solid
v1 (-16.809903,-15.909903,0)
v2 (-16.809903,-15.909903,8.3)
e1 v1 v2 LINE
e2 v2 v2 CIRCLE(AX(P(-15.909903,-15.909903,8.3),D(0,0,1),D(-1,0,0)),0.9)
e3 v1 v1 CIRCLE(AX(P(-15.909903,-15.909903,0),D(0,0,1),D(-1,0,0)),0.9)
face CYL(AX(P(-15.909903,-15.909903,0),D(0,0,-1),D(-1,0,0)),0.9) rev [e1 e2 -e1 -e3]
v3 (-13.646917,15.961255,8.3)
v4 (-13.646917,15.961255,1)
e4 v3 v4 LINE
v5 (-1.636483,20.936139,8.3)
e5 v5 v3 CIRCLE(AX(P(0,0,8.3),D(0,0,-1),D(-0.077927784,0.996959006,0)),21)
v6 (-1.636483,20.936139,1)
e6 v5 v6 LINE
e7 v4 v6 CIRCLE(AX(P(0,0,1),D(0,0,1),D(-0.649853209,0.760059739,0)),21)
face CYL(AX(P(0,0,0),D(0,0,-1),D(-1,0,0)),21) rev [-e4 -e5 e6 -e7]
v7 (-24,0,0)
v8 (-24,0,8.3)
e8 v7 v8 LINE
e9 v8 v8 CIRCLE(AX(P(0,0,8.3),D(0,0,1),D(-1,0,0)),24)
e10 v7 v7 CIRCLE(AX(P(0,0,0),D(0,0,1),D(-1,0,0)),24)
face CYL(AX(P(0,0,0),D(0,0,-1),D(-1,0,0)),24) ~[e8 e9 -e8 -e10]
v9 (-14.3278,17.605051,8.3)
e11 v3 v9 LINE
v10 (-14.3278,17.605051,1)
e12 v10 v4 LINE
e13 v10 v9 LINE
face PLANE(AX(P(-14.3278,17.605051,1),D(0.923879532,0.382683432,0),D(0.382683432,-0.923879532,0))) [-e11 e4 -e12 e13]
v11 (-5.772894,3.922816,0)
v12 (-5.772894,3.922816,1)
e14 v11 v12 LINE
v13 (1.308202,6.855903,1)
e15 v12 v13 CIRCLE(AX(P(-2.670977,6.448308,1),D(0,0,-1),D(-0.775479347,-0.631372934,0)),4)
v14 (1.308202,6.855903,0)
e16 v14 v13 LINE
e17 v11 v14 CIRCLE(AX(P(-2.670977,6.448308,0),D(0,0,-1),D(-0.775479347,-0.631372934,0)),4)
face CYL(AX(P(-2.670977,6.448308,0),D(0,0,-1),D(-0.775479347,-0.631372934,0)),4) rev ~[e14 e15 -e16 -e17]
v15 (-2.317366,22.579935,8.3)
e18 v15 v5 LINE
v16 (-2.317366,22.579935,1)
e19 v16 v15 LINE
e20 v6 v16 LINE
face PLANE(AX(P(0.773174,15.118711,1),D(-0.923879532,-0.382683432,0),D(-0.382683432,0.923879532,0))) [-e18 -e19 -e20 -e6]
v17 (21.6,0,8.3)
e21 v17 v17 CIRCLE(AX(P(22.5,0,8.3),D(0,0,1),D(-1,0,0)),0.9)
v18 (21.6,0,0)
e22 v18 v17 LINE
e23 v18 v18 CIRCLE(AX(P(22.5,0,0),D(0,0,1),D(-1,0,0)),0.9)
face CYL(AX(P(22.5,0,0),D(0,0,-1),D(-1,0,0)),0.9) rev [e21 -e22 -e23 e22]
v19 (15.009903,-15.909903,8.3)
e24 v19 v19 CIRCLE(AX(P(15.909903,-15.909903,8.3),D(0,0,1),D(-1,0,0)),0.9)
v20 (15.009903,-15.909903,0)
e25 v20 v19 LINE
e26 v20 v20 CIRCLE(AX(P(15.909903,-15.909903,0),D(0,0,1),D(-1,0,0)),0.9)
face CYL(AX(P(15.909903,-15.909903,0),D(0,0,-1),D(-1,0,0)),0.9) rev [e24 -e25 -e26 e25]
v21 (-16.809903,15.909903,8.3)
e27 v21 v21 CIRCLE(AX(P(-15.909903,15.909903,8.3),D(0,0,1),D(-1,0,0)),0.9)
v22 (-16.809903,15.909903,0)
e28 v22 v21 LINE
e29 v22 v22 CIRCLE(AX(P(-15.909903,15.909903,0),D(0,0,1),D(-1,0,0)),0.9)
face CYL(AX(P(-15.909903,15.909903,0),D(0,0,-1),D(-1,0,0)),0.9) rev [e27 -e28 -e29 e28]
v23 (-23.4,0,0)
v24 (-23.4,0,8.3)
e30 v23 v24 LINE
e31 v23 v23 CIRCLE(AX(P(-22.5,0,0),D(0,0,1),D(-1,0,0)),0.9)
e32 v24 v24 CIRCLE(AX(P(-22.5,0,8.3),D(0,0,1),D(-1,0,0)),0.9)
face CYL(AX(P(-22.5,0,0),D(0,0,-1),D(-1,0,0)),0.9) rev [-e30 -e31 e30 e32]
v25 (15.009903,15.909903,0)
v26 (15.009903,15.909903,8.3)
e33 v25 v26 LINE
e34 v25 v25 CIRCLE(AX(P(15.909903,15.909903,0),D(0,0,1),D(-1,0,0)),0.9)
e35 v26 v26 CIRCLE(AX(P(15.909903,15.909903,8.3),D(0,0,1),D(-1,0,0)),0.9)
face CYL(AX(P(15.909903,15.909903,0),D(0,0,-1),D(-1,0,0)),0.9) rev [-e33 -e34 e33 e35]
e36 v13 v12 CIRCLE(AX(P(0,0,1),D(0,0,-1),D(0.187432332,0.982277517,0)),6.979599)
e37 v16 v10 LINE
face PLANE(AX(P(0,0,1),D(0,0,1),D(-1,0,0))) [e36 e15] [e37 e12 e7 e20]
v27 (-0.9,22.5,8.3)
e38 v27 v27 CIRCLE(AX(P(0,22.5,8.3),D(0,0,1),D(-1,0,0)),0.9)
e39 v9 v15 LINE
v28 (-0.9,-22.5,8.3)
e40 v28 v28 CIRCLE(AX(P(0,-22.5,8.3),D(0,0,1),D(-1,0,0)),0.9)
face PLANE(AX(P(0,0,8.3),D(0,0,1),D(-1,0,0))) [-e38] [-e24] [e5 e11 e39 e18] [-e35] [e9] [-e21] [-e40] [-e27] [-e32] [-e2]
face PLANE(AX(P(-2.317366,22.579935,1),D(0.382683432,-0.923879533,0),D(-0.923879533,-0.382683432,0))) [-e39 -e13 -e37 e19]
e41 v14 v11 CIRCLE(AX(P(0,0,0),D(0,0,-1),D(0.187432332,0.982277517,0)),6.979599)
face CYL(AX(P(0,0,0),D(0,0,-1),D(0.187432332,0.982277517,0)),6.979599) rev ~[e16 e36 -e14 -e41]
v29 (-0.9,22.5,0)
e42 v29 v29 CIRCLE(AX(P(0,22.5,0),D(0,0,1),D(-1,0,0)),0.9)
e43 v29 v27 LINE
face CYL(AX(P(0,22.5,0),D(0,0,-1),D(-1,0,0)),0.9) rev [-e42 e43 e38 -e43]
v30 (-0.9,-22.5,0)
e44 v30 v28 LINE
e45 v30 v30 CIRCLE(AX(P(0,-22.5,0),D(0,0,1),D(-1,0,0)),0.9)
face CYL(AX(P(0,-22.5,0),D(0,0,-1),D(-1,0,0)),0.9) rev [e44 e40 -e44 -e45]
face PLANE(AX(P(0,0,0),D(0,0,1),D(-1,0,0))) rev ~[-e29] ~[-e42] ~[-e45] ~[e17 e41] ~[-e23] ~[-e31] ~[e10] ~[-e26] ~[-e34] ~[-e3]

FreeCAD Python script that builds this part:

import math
import FreeCAD as App
import Part
import Sketcher
Q = App.Units.Quantity

doc = App.newDocument("Part")
body = doc.addObject("PartDesign::Body", "Body")

sketch1 = body.newObject("Sketcher::SketchObject", "Sketch")
sketch1.AttachmentSupport = (doc.getObject("XY_Plane"), [""])
sketch1.MapMode = "FlatFace"
sketch1.addGeometry(Part.Circle(App.Vector(0, 0, 0), App.Vector(0, 0, 1), 24), False)
sketch1.addGeometry(Part.Circle(App.Vector(15.9, 15.9, 0), App.Vector(0, 0, 1), 0.9), False)
sketch1.addGeometry(Part.Circle(App.Vector(22.5, 0, 0), App.Vector(0, 0, 1), 0.9), False)
sketch1.addGeometry(Part.Circle(App.Vector(0, 22.5, 0), App.Vector(0, 0, 1), 0.9), False)
sketch1.addGeometry(Part.Circle(App.Vector(-15.9, 15.9, 0), App.Vector(0, 0, 1), 0.9), False)
sketch1.addGeometry(Part.Circle(App.Vector(15.9, -15.9, 0), App.Vector(0, 0, 1), 0.9), False)
sketch1.addGeometry(Part.Circle(App.Vector(0, 0, 0), App.Vector(0, 0, 1), 21), False)
sketch1.addGeometry(Part.Circle(App.Vector(-22.5, 0, 0), App.Vector(0, 0, 1), 0.9), False)
sketch1.addGeometry(Part.Circle(App.Vector(0, -22.5, 0), App.Vector(0, 0, 1), 0.9), False)
sketch1.addGeometry(Part.Circle(App.Vector(-15.9, -15.9, 0), App.Vector(0, 0, 1), 0.9), False)
sketch1.addConstraint(Sketcher.Constraint("Coincident", 0, 3, -1, 1))
sketch1.addConstraint(Sketcher.Constraint("Coincident", 6, 3, -1, 1))
sketch1.addConstraint(Sketcher.Constraint("Equal", 1, 2))
sketch1.addConstraint(Sketcher.Constraint("Equal", 2, 3))
sketch1.addConstraint(Sketcher.Constraint("Equal", 3, 4))
sketch1.addConstraint(Sketcher.Constraint("Equal", 4, 5))
sketch1.addConstraint(Sketcher.Constraint("Equal", 5, 7))
sketch1.addConstraint(Sketcher.Constraint("Equal", 7, 8))
sketch1.addConstraint(Sketcher.Constraint("Equal", 8, 9))
sketch1.addConstraint(Sketcher.Constraint("Symmetric", 4, 3, 5, 3, -1, 1))
sketch1.addConstraint(Sketcher.Constraint("Symmetric", 2, 3, 7, 3, -1, 1))
sketch1.addConstraint(Sketcher.Constraint("Symmetric", 3, 3, 8, 3, -1, 1))
sketch1.addConstraint(Sketcher.Constraint("Symmetric", 1, 3, 9, 3, -1, 1))
sketch1.addConstraint(Sketcher.Constraint("Symmetric", 1, 3, 4, 3, -2))
sketch1.addConstraint(Sketcher.Constraint("PointOnObject", 2, 3, -1))
sketch1.addConstraint(Sketcher.Constraint("PointOnObject", 3, 3, -2))
sketch1.addConstraint(Sketcher.Constraint("Diameter", 0, 48.0))
sketch1.addConstraint(Sketcher.Constraint("Diameter", 6, 42.0))
sketch1.addConstraint(Sketcher.Constraint("Diameter", 1, 1.8))
sketch1.addConstraint(Sketcher.Constraint("DistanceX", -1, 1, 2, 3, 22.5))
sketch1.addConstraint(Sketcher.Constraint("DistanceY", -1, 1, 3, 3, 22.5))
sketch1.addConstraint(Sketcher.Constraint("DistanceX", -1, 1, 1, 3, 15.909903))
sketch1.addConstraint(Sketcher.Constraint("DistanceY", -1, 1, 1, 3, 15.909903))
pad1 = body.newObject("PartDesign::Pad", "Pad")
pad1.Profile = sketch1
pad1.Length = 8.3

sketch2 = body.newObject("Sketcher::SketchObject", "Sketch001")
sketch2.AttachmentSupport = (doc.getObject("XY_Plane"), [""])
sketch2.MapMode = "FlatFace"
sketch2.addGeometry(Part.Circle(App.Vector(0, 0, 0), App.Vector(0, 0, 1), 21), False)
sketch2.addConstraint(Sketcher.Constraint("Coincident", 0, 3, -1, 1))
sketch2.addConstraint(Sketcher.Constraint("Diameter", 0, 42.0))
pad2 = body.newObject("PartDesign::Pad", "Pad001")
pad2.Profile = sketch2
pad2.Length = 1

sketch3 = body.newObject("Sketcher::SketchObject", "Sketch002")
sketch3.AttachmentSupport = (doc.getObject("XY_Plane"), [""])
sketch3.MapMode = "FlatFace"
sketch3.addGeometry(Part.ArcOfCircle(Part.Circle(App.Vector(0, 0, 0), App.Vector(0, 0, 1), 7), math.radians(146), math.radians(439)), False)
sketch3.addGeometry(Part.ArcOfCircle(Part.Circle(App.Vector(-2.7, 6.4, 0), App.Vector(0, 0, 1), 4), math.radians(6), math.radians(219)), False)
sketch3.addConstraint(Sketcher.Constraint("Coincident", 0, 1, 1, 2))
sketch3.addConstraint(Sketcher.Constraint("Coincident", 1, 1, 0, 2))
sketch3.addConstraint(Sketcher.Constraint("Coincident", 0, 3, -1, 1))
sketch3.addConstraint(Sketcher.Constraint("Radius", 1, 4.0))
sketch3.addConstraint(Sketcher.Constraint("Radius", 0, 6.979599))
sketch3.addConstraint(Sketcher.Constraint("DistanceY", -1, 1, 1, 3, 6.448308))
sketch3.addConstraint(Sketcher.Constraint("DistanceY", 0, 1, 1, 3, 2.525492))
pocket1 = body.newObject("PartDesign::Pocket", "Pocket")
pocket1.Profile = sketch3
pocket1.Type = "ThroughAll"
pocket1.Reversed = True

sketch4 = body.newObject("Sketcher::SketchObject", "Sketch003")
sketch4.AttachmentSupport = (doc.getObject("XY_Plane"), [""])
sketch4.MapMode = "FlatFace"
sketch4.AttachmentOffset = App.Placement(App.Vector(0, 0, 1), App.Rotation())
sketch4.addGeometry(Part.LineSegment(App.Vector(-2, 23, 0), App.Vector(-14, 18, 0)), False)
sketch4.addGeometry(Part.LineSegment(App.Vector(-14, 18, 0), App.Vector(-11, 10, 0)), False)
sketch4.addGeometry(Part.LineSegment(App.Vector(-11, 10, 0), App.Vector(1, 15, 0)), False)
sketch4.addGeometry(Part.LineSegment(App.Vector(1, 15, 0), App.Vector(-2, 23, 0)), False)
sketch4.addConstraint(Sketcher.Constraint("Coincident", 0, 2, 1, 1))
sketch4.addConstraint(Sketcher.Constraint("Coincident", 1, 2, 2, 1))
sketch4.addConstraint(Sketcher.Constraint("Coincident", 2, 2, 3, 1))
sketch4.addConstraint(Sketcher.Constraint("Coincident", 3, 2, 0, 1))
sketch4.addConstraint(Sketcher.Constraint("Perpendicular", 0, 1))
sketch4.addConstraint(Sketcher.Constraint("Perpendicular", 1, 2))
sketch4.addConstraint(Sketcher.Constraint("Perpendicular", 2, 3))
sketch4.addConstraint(Sketcher.Constraint("Distance", 0, 13.0))
sketch4.addConstraint(Sketcher.Constraint("Angle", 0, Q("-157.5 deg")))
sketch4.addConstraint(Sketcher.Constraint("DistanceX", 0, 2, -1, 1, 14.3278))
sketch4.addConstraint(Sketcher.Constraint("Distance", 1, 8.075971))
sketch4.addConstraint(Sketcher.Constraint("DistanceY", -1, 1, 0, 2, 17.605051))
pocket2 = body.newObject("PartDesign::Pocket", "Pocket001")
pocket2.Profile = sketch4
pocket2.Type = "ThroughAll"
pocket2.Reversed = True

doc.recompute()
